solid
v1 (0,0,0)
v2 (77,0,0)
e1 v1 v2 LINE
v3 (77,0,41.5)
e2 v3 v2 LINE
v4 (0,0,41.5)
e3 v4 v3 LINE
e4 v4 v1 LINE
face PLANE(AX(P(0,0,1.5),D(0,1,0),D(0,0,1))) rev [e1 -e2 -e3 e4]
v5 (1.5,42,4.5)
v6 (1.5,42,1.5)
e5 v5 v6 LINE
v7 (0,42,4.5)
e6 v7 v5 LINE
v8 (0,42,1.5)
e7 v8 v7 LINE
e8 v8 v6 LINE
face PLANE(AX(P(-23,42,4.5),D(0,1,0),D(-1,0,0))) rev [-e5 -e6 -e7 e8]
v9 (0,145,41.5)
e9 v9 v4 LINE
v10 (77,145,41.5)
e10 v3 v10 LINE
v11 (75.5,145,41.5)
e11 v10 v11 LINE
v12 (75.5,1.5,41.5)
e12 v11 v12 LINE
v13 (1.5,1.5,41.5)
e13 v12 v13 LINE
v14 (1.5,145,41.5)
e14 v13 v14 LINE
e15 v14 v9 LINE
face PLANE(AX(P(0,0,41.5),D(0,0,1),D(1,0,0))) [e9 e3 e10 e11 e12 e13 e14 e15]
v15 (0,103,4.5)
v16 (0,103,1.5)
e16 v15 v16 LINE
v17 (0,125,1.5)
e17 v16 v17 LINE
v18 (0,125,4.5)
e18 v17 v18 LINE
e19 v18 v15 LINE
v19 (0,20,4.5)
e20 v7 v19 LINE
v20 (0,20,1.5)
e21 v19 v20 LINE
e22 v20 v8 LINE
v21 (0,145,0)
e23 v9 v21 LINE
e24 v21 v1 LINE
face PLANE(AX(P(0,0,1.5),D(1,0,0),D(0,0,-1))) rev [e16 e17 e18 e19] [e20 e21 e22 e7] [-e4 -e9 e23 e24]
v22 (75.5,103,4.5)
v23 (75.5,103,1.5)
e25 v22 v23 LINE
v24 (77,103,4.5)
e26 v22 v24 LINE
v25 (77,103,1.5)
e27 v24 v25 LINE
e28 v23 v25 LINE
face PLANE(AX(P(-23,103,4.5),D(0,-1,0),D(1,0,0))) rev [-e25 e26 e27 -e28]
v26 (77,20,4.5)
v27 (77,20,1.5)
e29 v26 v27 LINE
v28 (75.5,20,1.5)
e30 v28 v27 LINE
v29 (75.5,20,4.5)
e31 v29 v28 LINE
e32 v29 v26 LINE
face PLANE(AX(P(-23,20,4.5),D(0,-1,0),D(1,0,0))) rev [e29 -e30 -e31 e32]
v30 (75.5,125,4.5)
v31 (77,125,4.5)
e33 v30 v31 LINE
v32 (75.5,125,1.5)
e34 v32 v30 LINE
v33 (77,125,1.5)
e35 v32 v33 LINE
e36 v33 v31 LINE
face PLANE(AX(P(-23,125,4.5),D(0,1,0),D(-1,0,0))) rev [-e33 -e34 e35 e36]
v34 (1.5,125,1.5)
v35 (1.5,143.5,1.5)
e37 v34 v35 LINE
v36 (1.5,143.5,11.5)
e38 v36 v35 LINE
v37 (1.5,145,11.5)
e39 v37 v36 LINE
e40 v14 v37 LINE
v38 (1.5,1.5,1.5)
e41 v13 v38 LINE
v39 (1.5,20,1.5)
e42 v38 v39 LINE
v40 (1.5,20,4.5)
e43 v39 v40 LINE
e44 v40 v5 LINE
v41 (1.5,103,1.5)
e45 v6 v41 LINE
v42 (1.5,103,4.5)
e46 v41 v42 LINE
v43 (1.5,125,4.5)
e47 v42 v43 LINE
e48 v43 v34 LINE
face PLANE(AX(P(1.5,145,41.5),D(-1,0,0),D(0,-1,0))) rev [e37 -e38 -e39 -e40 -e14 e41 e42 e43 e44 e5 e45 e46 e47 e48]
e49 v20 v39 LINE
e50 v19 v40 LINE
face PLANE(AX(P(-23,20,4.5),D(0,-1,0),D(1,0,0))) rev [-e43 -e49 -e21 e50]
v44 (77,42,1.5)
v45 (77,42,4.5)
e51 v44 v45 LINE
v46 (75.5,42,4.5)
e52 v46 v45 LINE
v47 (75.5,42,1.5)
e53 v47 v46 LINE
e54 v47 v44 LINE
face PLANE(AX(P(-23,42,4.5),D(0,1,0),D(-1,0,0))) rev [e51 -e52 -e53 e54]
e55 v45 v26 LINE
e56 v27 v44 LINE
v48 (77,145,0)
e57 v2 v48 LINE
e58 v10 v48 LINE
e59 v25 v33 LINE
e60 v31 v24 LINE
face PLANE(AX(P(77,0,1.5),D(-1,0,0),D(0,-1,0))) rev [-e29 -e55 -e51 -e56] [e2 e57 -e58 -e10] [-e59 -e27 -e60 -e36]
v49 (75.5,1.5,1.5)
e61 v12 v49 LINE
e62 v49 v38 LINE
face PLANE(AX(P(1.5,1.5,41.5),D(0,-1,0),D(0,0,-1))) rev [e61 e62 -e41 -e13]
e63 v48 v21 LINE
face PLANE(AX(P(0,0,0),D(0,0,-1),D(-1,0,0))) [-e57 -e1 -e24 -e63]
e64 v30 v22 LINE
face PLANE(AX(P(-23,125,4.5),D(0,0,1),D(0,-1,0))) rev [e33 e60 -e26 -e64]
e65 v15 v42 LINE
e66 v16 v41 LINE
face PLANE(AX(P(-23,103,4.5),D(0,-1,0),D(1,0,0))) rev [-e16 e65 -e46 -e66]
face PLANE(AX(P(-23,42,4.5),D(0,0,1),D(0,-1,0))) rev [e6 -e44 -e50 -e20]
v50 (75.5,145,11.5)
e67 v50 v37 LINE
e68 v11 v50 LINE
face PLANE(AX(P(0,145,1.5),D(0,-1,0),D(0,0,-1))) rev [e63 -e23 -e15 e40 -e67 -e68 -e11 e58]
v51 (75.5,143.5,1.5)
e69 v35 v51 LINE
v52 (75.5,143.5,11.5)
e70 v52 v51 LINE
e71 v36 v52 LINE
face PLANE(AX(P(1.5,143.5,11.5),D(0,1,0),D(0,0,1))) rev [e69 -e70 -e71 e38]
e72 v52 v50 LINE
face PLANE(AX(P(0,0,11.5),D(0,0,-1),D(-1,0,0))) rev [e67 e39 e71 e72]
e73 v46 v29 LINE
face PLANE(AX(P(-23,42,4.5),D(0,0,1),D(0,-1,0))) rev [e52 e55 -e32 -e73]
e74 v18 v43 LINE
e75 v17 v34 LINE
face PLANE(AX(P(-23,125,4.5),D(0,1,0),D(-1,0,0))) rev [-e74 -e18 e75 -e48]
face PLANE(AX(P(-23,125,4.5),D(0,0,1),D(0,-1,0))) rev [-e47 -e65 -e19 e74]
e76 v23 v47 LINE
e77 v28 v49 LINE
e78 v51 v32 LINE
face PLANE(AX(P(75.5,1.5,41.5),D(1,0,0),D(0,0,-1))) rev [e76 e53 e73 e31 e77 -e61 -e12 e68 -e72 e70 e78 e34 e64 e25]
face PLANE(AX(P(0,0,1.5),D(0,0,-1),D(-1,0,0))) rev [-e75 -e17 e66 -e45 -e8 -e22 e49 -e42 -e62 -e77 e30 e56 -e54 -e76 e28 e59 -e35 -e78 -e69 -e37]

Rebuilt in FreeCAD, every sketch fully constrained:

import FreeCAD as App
import Part
import Sketcher
Q = App.Units.Quantity


def add_polygon(sketch, points):
    """Adds a closed chain of lines whose ends are joined by coincident constraints."""
    first, n = sketch.GeometryCount, len(points)
    for a, b in zip(points, points[1:] + points[:1]):
        sketch.addGeometry(Part.LineSegment(App.Vector(*a, 0), App.Vector(*b, 0)), False)
    for i in range(n):
        sketch.addConstraint(Sketcher.Constraint("Coincident", first + i, 2, first + (i + 1) % n, 1))

doc = App.newDocument("Part")
body = doc.addObject("PartDesign::Body", "Body")

sketch1 = body.newObject("Sketcher::SketchObject", "Sketch")
sketch1.AttachmentSupport = (doc.getObject("XY_Plane"), [""])
sketch1.MapMode = "FlatFace"
add_polygon(sketch1, [(0, 145), (0, 0), (77, 0), (77, 145)])
sketch1.addConstraint(Sketcher.Constraint("Vertical", 0))
sketch1.addConstraint(Sketcher.Constraint("Horizontal", 1))
sketch1.addConstraint(Sketcher.Constraint("Vertical", 2))
sketch1.addConstraint(Sketcher.Constraint("Horizontal", 3))
sketch1.addConstraint(Sketcher.Constraint("Coincident", 0, 2, -1, 1))
sketch1.addConstraint(Sketcher.Constraint("DistanceX", 1, 1, 1, 2, Q("77 mm")))
sketch1.addConstraint(Sketcher.Constraint("DistanceY", 0, 2, 0, 1, Q("145 mm")))
pad1 = body.newObject("PartDesign::Pad", "Pad")
pad1.Profile = sketch1
pad1.Length = 1.5

sketch2 = body.newObject("Sketcher::SketchObject", "Sketch001")
sketch2.AttachmentSupport = (doc.getObject("XY_Plane"), [""])
sketch2.MapMode = "FlatFace"
sketch2.AttachmentOffset = App.Placement(App.Vector(0, 0, 1.5), App.Rotation())
add_polygon(sketch2, [(1.5, 1.5), (1.5, 145), (0, 145), (0, 0), (77, 0), (77, 145), (75.5, 145), (75.5, 1.5)])
sketch2.addConstraint(Sketcher.Constraint("Vertical", 0))
sketch2.addConstraint(Sketcher.Constraint("Horizontal", 1))
sketch2.addConstraint(Sketcher.Constraint("Vertical", 2))
sketch2.addConstraint(Sketcher.Constraint("Horizontal", 3))
sketch2.addConstraint(Sketcher.Constraint("Vertical", 4))
sketch2.addConstraint(Sketcher.Constraint("Horizontal", 5))
sketch2.addConstraint(Sketcher.Constraint("Vertical", 6))
sketch2.addConstraint(Sketcher.Constraint("Horizontal", 7))
sketch2.addConstraint(Sketcher.Constraint("Coincident", 2, 2, -1, 1))
sketch2.addConstraint(Sketcher.Constraint("Horizontal", 1, 2, 4, 2))
sketch2.addConstraint(Sketcher.Constraint("Equal", 1, 5))
sketch2.addConstraint(Sketcher.Constraint("DistanceX", 3, 1, 3, 2, Q("77 mm")))
sketch2.addConstraint(Sketcher.Constraint("DistanceX", 7, 2, 7, 1, Q("74 mm")))
sketch2.addConstraint(Sketcher.Constraint("DistanceY", 2, 2, 2, 1, Q("145 mm")))
sketch2.addConstraint(Sketcher.Constraint("DistanceY", 0, 1, 0, 2, Q("143.5 mm")))
pad2 = body.newObject("PartDesign::Pad", "Pad001")
pad2.Profile = sketch2
pad2.Length = 40

sketch3 = body.newObject("Sketcher::SketchObject", "Sketch002")
sketch3.AttachmentSupport = (doc.getObject("XY_Plane"), [""])
sketch3.MapMode = "FlatFace"
sketch3.AttachmentOffset = App.Placement(App.Vector(0, 0, 1.5), App.Rotation())
add_polygon(sketch3, [(1.5, 145), (1.5, 143.5), (75.5, 143.5), (75.5, 145)])
sketch3.addConstraint(Sketcher.Constraint("Vertical", 0))
sketch3.addConstraint(Sketcher.Constraint("Horizontal", 1))
sketch3.addConstraint(Sketcher.Constraint("Vertical", 2))
sketch3.addConstraint(Sketcher.Constraint("Horizontal", 3))
sketch3.addConstraint(Sketcher.Constraint("DistanceX", 1, 1, 1, 2, Q("74 mm")))
sketch3.addConstraint(Sketcher.Constraint("DistanceY", 0, 2, 0, 1, Q("1.5 mm")))
sketch3.addConstraint(Sketcher.Constraint("DistanceY", -1, 1, 2, 2, Q("145 mm")))
sketch3.addConstraint(Sketcher.Constraint("DistanceX", -1, 1, 0, 2, Q("1.5 mm")))
pad3 = body.newObject("PartDesign::Pad", "Pad002")
pad3.Profile = sketch3
pad3.Length = 10

sketch4 = body.newObject("Sketcher::SketchObject", "Sketch003")
sketch4.AttachmentSupport = (doc.getObject("YZ_Plane"), [""])
sketch4.MapMode = "FlatFace"
sketch4.AttachmentOffset = App.Placement(App.Vector(0, 0, 77), App.Rotation())
add_polygon(sketch4, [(125, 4.5), (103, 4.5), (103, 1.5), (125, 1.5)])
add_polygon(sketch4, [(42, 4.5), (20, 4.5), (20, 1.5), (42, 1.5)])
sketch4.addConstraint(Sketcher.Constraint("Horizontal", 0))
sketch4.addConstraint(Sketcher.Constraint("Vertical", 1))
sketch4.addConstraint(Sketcher.Constraint("Horizontal", 2))
sketch4.addConstraint(Sketcher.Constraint("Vertical", 3))
sketch4.addConstraint(Sketcher.Constraint("Horizontal", 4))
sketch4.addConstraint(Sketcher.Constraint("Vertical", 5))
sketch4.addConstraint(Sketcher.Constraint("Horizontal", 6))
sketch4.addConstraint(Sketcher.Constraint("Vertical", 7))
sketch4.addConstraint(Sketcher.Constraint("Horizontal", 3, 2, 4, 2))
sketch4.addConstraint(Sketcher.Constraint("Horizontal", 2, 2, 5, 2))
sketch4.addConstraint(Sketcher.Constraint("Equal", 2, 4))
sketch4.addConstraint(Sketcher.Constraint("DistanceX", 0, 2, 0, 1, Q("22 mm")))
sketch4.addConstraint(Sketcher.Constraint("DistanceY", 1, 2, 1, 1, Q("3 mm")))
sketch4.addConstraint(Sketcher.Constraint("DistanceX", -1, 1, 0, 2, Q("103 mm")))
sketch4.addConstraint(Sketcher.Constraint("DistanceX", -1, 1, 4, 2, Q("20 mm")))
sketch4.addConstraint(Sketcher.Constraint("DistanceY", -1, 1, 0, 2, Q("4.5 mm")))
pocket1 = body.newObject("PartDesign::Pocket", "Pocket")
pocket1.Profile = sketch4
pocket1.Length = 100

doc.recompute()
